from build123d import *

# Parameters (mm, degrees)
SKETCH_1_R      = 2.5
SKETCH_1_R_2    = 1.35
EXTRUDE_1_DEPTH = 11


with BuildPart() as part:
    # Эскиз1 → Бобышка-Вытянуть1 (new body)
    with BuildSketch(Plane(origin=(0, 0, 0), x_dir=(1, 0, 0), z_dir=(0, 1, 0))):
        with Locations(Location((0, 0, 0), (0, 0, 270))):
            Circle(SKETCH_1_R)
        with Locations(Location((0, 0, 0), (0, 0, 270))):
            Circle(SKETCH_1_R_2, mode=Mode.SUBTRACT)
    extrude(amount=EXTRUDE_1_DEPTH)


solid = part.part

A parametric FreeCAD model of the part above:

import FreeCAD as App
import Part
import Sketcher

doc = App.newDocument("Part")
body = doc.addObject("PartDesign::Body", "Body")

# Sketch on XZ plane
sketch1 = body.newObject("Sketcher::SketchObject", "Sketch")
sketch1.AttachmentSupport = (doc.getObject("XZ_Plane"), [""])
sketch1.MapMode = "FlatFace"
sketch1.addGeometry(Part.Circle(App.Vector(0, 0, 0), App.Vector(0, 0, 1), 2.5), False)
sketch1.addGeometry(Part.Circle(App.Vector(0, 0, 0), App.Vector(0, 0, 1), 1.35), False)
sketch1.addConstraint(Sketcher.Constraint("Coincident", 0, 3, -1, 1))
sketch1.addConstraint(Sketcher.Constraint("Coincident", 1, 3, -1, 1))
sketch1.addConstraint(Sketcher.Constraint("Diameter", 0, 5.0))
sketch1.addConstraint(Sketcher.Constraint("Diameter", 1, 2.7))
pad1 = body.newObject("PartDesign::Pad", "Pad")
pad1.Profile = sketch1
pad1.Length = 11
pad1.Reversed = True

doc.recompute()
